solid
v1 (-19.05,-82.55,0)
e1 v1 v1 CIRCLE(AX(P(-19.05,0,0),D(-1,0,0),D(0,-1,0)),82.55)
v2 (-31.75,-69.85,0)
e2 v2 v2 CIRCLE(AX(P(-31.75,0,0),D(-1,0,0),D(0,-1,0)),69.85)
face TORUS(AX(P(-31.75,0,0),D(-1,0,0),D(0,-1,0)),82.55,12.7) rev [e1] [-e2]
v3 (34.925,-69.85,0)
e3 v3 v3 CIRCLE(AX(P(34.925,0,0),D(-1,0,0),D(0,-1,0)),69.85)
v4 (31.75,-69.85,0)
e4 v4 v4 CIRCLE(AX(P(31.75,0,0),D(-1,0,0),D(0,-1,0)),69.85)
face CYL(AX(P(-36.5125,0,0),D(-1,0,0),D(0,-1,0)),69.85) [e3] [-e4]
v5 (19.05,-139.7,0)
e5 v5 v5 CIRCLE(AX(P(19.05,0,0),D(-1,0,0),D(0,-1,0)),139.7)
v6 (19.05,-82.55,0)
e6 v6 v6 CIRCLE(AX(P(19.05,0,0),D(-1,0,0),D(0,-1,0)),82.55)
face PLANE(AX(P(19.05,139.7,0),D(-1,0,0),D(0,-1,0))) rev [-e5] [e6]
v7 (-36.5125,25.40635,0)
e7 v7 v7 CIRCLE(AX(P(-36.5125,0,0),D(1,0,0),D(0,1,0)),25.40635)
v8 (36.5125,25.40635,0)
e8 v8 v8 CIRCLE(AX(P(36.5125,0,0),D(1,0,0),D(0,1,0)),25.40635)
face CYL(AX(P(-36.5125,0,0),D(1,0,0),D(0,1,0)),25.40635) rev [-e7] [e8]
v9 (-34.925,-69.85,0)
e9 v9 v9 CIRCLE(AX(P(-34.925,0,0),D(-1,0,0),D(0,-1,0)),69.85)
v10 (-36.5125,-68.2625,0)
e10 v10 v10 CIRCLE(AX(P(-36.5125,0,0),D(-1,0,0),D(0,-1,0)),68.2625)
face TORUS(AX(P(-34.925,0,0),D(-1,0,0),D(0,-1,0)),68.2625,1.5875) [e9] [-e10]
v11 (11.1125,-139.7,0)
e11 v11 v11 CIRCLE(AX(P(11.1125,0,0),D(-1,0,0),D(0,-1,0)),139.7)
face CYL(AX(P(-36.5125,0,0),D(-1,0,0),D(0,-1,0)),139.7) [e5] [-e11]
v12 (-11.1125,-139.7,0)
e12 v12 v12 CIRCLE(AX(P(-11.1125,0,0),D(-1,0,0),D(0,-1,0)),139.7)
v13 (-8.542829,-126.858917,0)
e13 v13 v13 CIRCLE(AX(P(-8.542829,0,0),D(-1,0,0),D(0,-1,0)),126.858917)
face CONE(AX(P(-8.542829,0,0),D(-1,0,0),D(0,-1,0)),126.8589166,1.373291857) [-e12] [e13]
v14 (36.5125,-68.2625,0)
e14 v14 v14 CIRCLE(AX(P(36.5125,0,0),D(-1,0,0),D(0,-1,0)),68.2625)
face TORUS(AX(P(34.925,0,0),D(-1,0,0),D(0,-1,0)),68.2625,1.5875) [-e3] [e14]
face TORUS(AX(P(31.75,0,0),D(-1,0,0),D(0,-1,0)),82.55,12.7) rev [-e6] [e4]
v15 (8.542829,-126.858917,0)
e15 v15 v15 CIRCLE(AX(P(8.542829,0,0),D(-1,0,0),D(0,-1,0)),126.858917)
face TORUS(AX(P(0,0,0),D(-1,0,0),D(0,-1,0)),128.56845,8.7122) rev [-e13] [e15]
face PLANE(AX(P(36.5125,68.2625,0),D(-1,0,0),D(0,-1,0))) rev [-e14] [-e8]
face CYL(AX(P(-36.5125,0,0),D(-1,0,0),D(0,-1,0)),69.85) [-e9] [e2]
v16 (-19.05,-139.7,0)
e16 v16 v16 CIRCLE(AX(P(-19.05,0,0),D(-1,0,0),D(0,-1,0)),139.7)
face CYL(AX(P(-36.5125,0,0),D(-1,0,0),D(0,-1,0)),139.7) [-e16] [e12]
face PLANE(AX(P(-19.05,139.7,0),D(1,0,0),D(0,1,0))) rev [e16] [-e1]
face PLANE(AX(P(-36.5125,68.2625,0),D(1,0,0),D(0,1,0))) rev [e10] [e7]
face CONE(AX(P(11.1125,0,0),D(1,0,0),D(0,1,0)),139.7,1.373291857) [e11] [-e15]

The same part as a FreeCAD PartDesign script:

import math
import FreeCAD as App
import Part
import Sketcher
from FreeCAD import Vector
Q = App.Units.Quantity

doc = App.newDocument("Part")
body = doc.addObject("PartDesign::Body", "Body")

sketch1 = body.newObject("Sketcher::SketchObject", "Sketch")
sketch1.AttachmentSupport = (doc.getObject("XY_Plane"), [""])
sketch1.MapMode = "FlatFace"
sketch1.addGeometry(Part.LineSegment(Vector(19.05, 82.55, 0), Vector(19.05, 139.7, 0)), False)
sketch1.addGeometry(Part.LineSegment(Vector(19.05, 139.7, 0), Vector(11.1125, 139.7, 0)), False)
sketch1.addGeometry(Part.LineSegment(Vector(11.1125, 139.7, 0), Vector(8.542829, 126.858917, 0)), False)
sketch1.addGeometry(Part.ArcOfCircle(Part.Circle(Vector(0, 128.56845, 0), Vector(0, 0, 1), 8.7122), math.radians(-168.683827), math.radians(-11.316173)), False)
sketch1.addGeometry(Part.LineSegment(Vector(-8.542829, 126.858917, 0), Vector(-11.1125, 139.7, 0)), False)
sketch1.addGeometry(Part.LineSegment(Vector(-11.1125, 139.7, 0), Vector(-19.05, 139.7, 0)), False)
sketch1.addGeometry(Part.LineSegment(Vector(-19.05, 139.7, 0), Vector(-19.05, 82.55, 0)), False)
sketch1.addGeometry(Part.ArcOfCircle(Part.Circle(Vector(-31.75, 82.55, 0), Vector(0, 0, 1), 12.7), math.radians(-90), math.radians(0)), False)
sketch1.addGeometry(Part.LineSegment(Vector(-31.75, 69.85, 0), Vector(-34.925, 69.85, 0)), False)
sketch1.addGeometry(Part.ArcOfCircle(Part.Circle(Vector(-34.925, 68.2625, 0), Vector(0, 0, 1), 1.5875), math.radians(90), math.radians(180)), False)
sketch1.addGeometry(Part.LineSegment(Vector(-36.5125, 68.2625, 0), Vector(-36.5125, 0, 0)), False)
sketch1.addGeometry(Part.LineSegment(Vector(-36.5125, 0, 0), Vector(36.5125, 0, 0)), False)
sketch1.addGeometry(Part.LineSegment(Vector(36.5125, 0, 0), Vector(36.5125, 68.2625, 0)), False)
sketch1.addGeometry(Part.ArcOfCircle(Part.Circle(Vector(34.925, 68.2625, 0), Vector(0, 0, 1), 1.5875), math.radians(0), math.radians(90)), False)
sketch1.addGeometry(Part.LineSegment(Vector(34.925, 69.85, 0), Vector(31.75, 69.85, 0)), False)
sketch1.addGeometry(Part.ArcOfCircle(Part.Circle(Vector(31.75, 82.55, 0), Vector(0, 0, 1), 12.7), math.radians(180), math.radians(270)), False)
sketch1.addConstraint(Sketcher.Constraint("Coincident", 0, 2, 1, 1))
sketch1.addConstraint(Sketcher.Constraint("Coincident", 1, 2, 2, 1))
sketch1.addConstraint(Sketcher.Constraint("Tangent", 2, 2, 3, 2))
sketch1.addConstraint(Sketcher.Constraint("Tangent", 3, 1, 4, 1))
sketch1.addConstraint(Sketcher.Constraint("Coincident", 4, 2, 5, 1))
sketch1.addConstraint(Sketcher.Constraint("Coincident", 5, 2, 6, 1))
sketch1.addConstraint(Sketcher.Constraint("Tangent", 6, 2, 7, 2))
sketch1.addConstraint(Sketcher.Constraint("Tangent", 7, 1, 8, 1))
sketch1.addConstraint(Sketcher.Constraint("Tangent", 8, 2, 9, 1))
sketch1.addConstraint(Sketcher.Constraint("Tangent", 9, 2, 10, 1))
sketch1.addConstraint(Sketcher.Constraint("Coincident", 10, 2, 11, 1))
sketch1.addConstraint(Sketcher.Constraint("Coincident", 11, 2, 12, 1))
sketch1.addConstraint(Sketcher.Constraint("Tangent", 12, 2, 13, 1))
sketch1.addConstraint(Sketcher.Constraint("Tangent", 13, 2, 14, 1))
sketch1.addConstraint(Sketcher.Constraint("Tangent", 14, 2, 15, 2))
sketch1.addConstraint(Sketcher.Constraint("Tangent", 15, 1, 0, 1))
sketch1.addConstraint(Sketcher.Constraint("Vertical", 0))
sketch1.addConstraint(Sketcher.Constraint("Horizontal", 1))
sketch1.addConstraint(Sketcher.Constraint("Horizontal", 5))
sketch1.addConstraint(Sketcher.Constraint("Vertical", 6))
sketch1.addConstraint(Sketcher.Constraint("Horizontal", 8))
sketch1.addConstraint(Sketcher.Constraint("Vertical", 10))
sketch1.addConstraint(Sketcher.Constraint("Horizontal", 11))
sketch1.addConstraint(Sketcher.Constraint("Vertical", 12))
sketch1.addConstraint(Sketcher.Constraint("Horizontal", 14))
sketch1.addConstraint(Sketcher.Constraint("Equal", 9, 13))
sketch1.addConstraint(Sketcher.Constraint("Equal", 7, 15))
sketch1.addConstraint(Sketcher.Constraint("Symmetric", 10, 2, 11, 2, -1, 1))
sketch1.addConstraint(Sketcher.Constraint("Symmetric", 7, 3, 15, 3, -2))
sketch1.addConstraint(Sketcher.Constraint("Symmetric", 2, 2, 3, 1, -2))
sketch1.addConstraint(Sketcher.Constraint("Horizontal", 1, 2, 4, 2))
sketch1.addConstraint(Sketcher.Constraint("Radius", 7, Q("0.5 in")))
sketch1.addConstraint(Sketcher.Constraint("Radius", 3, Q("0.343 in")))
sketch1.addConstraint(Sketcher.Constraint("Radius", 9, Q("0.0625 in")))
sketch1.addConstraint(Sketcher.Constraint("DistanceX", 7, 3, 0, 2, Q("2 in")))
sketch1.addConstraint(Sketcher.Constraint("DistanceY", 0, 1, 0, 2, Q("2.25 in")))
sketch1.addConstraint(Sketcher.Constraint("DistanceY", -1, 1, 0, 2, Q("5.5 in")))
sketch1.addConstraint(Sketcher.Constraint("DistanceX", 1, 2, 1, 1, Q("0.3125 in")))
sketch1.addConstraint(Sketcher.Constraint("DistanceX", 8, 2, 8, 1, Q("0.125 in")))
sketch1.addConstraint(Sketcher.Constraint("DistanceY", -1, 1, 3, 3, Q("128.56845 mm")))
revolution = body.newObject("PartDesign::Revolution", "Revolution")
revolution.Profile = sketch1
revolution.ReferenceAxis = (sketch1, ["H_Axis"])
revolution.Angle = 360

sketch2 = body.newObject("Sketcher::SketchObject", "Sketch001")
sketch2.AttachmentSupport = (doc.getObject("YZ_Plane"), [""])
sketch2.MapMode = "FlatFace"
sketch2.AttachmentOffset = App.Placement(Vector(0, 0, 1.4375 * 25.4), App.Rotation())
sketch2.addGeometry(Part.Circle(Vector(0, 0, 0), Vector(0, 0, 1), 25.40635), False)
sketch2.addConstraint(Sketcher.Constraint("Coincident", 0, 3, -1, 1))
sketch2.addConstraint(Sketcher.Constraint("Diameter", 0, Q("2.0005 in")))
pocket1 = body.newObject("PartDesign::Pocket", "Pocket")
pocket1.Profile = sketch2
pocket1.Type = "ThroughAll"

doc.recompute()
